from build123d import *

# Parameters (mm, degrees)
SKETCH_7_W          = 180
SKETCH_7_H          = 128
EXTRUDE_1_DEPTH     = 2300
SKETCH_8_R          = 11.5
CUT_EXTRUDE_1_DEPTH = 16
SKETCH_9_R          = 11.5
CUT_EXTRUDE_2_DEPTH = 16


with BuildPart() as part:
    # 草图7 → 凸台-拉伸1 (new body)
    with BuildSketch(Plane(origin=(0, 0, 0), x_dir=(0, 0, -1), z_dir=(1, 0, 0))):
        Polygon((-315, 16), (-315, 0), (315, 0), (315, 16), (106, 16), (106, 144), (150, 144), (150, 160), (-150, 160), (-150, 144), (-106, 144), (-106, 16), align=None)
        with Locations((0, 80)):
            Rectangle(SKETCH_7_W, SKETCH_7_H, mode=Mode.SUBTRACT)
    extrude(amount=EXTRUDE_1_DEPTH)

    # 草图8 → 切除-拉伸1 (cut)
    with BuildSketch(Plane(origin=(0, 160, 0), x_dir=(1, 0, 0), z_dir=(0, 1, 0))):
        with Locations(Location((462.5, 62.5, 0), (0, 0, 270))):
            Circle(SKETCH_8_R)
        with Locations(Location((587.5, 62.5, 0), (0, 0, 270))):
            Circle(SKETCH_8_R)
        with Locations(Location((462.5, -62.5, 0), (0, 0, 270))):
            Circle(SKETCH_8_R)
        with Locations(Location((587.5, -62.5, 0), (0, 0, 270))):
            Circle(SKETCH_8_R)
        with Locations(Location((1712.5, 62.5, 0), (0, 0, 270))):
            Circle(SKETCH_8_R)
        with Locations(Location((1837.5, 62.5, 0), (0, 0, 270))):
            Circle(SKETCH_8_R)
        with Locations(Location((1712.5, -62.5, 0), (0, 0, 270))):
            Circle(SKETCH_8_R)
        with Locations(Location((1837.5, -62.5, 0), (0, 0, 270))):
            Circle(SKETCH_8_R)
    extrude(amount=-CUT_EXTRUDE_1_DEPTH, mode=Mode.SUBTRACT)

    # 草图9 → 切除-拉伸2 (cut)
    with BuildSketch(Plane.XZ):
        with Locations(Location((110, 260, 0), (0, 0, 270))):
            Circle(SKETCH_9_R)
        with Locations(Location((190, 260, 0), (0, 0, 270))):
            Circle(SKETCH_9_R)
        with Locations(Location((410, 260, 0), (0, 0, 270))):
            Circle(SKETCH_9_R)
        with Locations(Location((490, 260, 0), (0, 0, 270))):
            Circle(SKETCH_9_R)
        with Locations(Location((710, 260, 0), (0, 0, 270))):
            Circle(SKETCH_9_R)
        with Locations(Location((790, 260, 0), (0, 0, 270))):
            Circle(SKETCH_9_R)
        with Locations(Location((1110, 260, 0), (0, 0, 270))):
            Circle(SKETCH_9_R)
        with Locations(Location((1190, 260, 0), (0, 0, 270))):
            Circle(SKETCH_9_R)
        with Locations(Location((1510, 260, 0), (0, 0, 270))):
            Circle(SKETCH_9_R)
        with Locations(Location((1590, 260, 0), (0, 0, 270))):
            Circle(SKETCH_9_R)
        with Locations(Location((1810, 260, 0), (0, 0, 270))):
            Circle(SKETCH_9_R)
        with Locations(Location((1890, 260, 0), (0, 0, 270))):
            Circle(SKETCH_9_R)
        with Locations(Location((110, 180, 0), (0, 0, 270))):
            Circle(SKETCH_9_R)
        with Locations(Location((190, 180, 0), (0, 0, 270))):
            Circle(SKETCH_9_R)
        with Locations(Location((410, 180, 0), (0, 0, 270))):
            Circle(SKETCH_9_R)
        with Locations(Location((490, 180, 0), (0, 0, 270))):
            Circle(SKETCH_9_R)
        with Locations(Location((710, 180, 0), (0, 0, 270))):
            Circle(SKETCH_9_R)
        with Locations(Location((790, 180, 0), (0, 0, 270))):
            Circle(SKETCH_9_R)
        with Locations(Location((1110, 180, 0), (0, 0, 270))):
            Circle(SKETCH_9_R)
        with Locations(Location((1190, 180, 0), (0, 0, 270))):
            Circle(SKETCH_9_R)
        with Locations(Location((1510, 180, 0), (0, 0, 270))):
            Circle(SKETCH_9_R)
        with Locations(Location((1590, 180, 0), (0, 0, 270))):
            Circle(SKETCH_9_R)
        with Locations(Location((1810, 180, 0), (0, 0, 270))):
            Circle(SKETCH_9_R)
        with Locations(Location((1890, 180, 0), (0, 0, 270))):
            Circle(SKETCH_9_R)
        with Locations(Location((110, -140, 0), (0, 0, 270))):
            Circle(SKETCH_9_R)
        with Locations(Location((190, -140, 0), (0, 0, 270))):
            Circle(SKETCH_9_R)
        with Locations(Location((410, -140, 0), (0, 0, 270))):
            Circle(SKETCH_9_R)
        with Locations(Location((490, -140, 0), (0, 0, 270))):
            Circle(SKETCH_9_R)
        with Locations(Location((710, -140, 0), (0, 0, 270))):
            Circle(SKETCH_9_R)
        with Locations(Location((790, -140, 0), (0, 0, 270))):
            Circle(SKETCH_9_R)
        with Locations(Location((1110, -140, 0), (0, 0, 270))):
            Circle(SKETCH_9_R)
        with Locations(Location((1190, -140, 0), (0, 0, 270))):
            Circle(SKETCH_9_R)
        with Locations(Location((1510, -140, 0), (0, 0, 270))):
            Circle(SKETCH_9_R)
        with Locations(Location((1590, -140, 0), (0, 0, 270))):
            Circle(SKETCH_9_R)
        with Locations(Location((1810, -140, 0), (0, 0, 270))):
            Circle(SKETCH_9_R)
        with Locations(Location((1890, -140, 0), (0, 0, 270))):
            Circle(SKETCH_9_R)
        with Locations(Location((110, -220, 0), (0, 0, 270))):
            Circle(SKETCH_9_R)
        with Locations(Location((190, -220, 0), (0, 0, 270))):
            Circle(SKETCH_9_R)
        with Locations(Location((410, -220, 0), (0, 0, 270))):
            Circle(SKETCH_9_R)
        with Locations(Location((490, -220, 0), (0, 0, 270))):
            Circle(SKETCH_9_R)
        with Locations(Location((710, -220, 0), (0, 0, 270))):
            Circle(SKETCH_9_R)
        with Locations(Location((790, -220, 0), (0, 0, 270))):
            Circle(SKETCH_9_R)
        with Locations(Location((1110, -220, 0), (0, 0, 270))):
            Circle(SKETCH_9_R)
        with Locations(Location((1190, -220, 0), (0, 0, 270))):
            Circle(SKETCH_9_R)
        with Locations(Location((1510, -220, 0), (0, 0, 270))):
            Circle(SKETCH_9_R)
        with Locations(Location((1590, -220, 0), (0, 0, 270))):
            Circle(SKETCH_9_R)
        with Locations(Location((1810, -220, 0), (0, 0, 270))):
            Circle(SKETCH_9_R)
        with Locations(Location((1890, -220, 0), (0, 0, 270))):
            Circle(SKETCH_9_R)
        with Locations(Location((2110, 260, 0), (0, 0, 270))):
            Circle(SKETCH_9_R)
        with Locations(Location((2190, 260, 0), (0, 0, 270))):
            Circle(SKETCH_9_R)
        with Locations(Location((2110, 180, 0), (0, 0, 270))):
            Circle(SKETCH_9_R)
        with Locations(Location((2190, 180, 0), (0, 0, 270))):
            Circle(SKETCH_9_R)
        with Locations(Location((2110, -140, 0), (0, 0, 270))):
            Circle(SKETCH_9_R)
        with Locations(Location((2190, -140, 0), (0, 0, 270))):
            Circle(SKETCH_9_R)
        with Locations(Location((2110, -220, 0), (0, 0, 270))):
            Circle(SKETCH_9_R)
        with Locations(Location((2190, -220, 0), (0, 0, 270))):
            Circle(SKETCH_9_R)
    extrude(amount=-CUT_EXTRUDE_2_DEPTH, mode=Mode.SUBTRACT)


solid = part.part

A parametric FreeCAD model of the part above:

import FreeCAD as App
import Part
import Sketcher
from FreeCAD import Vector
Q = App.Units.Quantity

doc = App.newDocument("Part")
params = doc.addObject("Spreadsheet::Sheet", "Params")
for row, (alias, value) in enumerate([
    ("sketch1_width", "16 mm"),
    ("sketch1_width2", "128 mm"),
    ("sketch1_height", "630 mm"),
    ("sketch1_height2", "209 mm"),
    ("sketch1_height3", "44 mm"),
    ("pad1_length", "2300 mm"),
    ("sketch2_diameter", "23 mm"),
    ("pocket1_length", "16 mm"),
    ("sketch3_diameter", "23 mm"),
    ("pocket2_length", "16 mm"),
], start=1):
    params.set(f"A{row}", alias)
    params.set(f"B{row}", "=" + value)
    params.setAlias(f"B{row}", alias)

body = doc.addObject("PartDesign::Body", "Body")

# Sketch on YZ plane
sketch1 = body.newObject("Sketcher::SketchObject", "Sketch")
sketch1.AttachmentSupport = (doc.getObject("YZ_Plane"), [""])
sketch1.MapMode = "FlatFace"
sketch1.addGeometry([
    Part.LineSegment(Vector(16, 315, 0), Vector(0, 315, 0)),  # 0
    Part.LineSegment(Vector(0, 315, 0), Vector(0, -315, 0)),  # 1
    Part.LineSegment(Vector(0, -315, 0), Vector(16, -315, 0)),  # 2
    Part.LineSegment(Vector(16, -315, 0), Vector(16, -106, 0)),  # 3
    Part.LineSegment(Vector(16, -106, 0), Vector(144, -106, 0)),  # 4
    Part.LineSegment(Vector(144, -106, 0), Vector(144, -150, 0)),  # 5
    Part.LineSegment(Vector(144, -150, 0), Vector(160, -150, 0)),  # 6
    Part.LineSegment(Vector(160, -150, 0), Vector(160, 150, 0)),  # 7
    Part.LineSegment(Vector(160, 150, 0), Vector(144, 150, 0)),  # 8
    Part.LineSegment(Vector(144, 150, 0), Vector(144, 106, 0)),  # 9
    Part.LineSegment(Vector(144, 106, 0), Vector(16, 106, 0)),  # 10
    Part.LineSegment(Vector(16, 106, 0), Vector(16, 315, 0)),  # 11
    Part.LineSegment(Vector(16, -90, 0), Vector(16, 90, 0)),  # 12
    Part.LineSegment(Vector(16, 90, 0), Vector(144, 90, 0)),  # 13
    Part.LineSegment(Vector(144, 90, 0), Vector(144, -90, 0)),  # 14
    Part.LineSegment(Vector(144, -90, 0), Vector(16, -90, 0)),  # 15
], False)
sketch1.addConstraint([
    Sketcher.Constraint("Coincident", 0, 2, 1, 1),
    Sketcher.Constraint("Coincident", 1, 2, 2, 1),
    Sketcher.Constraint("Coincident", 2, 2, 3, 1),
    Sketcher.Constraint("Coincident", 3, 2, 4, 1),
    Sketcher.Constraint("Coincident", 4, 2, 5, 1),
    Sketcher.Constraint("Coincident", 5, 2, 6, 1),
    Sketcher.Constraint("Coincident", 6, 2, 7, 1),
    Sketcher.Constraint("Coincident", 7, 2, 8, 1),
    Sketcher.Constraint("Coincident", 8, 2, 9, 1),
    Sketcher.Constraint("Coincident", 9, 2, 10, 1),
    Sketcher.Constraint("Coincident", 10, 2, 11, 1),
    Sketcher.Constraint("Coincident", 11, 2, 0, 1),
    Sketcher.Constraint("Coincident", 12, 2, 13, 1),
    Sketcher.Constraint("Coincident", 13, 2, 14, 1),
    Sketcher.Constraint("Coincident", 14, 2, 15, 1),
    Sketcher.Constraint("Coincident", 15, 2, 12, 1),
    Sketcher.Constraint("Horizontal", 0),
    Sketcher.Constraint("Vertical", 1),
    Sketcher.Constraint("Horizontal", 2),
    Sketcher.Constraint("Vertical", 3),
    Sketcher.Constraint("Horizontal", 4),
    Sketcher.Constraint("Vertical", 5),
    Sketcher.Constraint("Horizontal", 6),
    Sketcher.Constraint("Vertical", 7),
    Sketcher.Constraint("Horizontal", 8),
    Sketcher.Constraint("Vertical", 9),
    Sketcher.Constraint("Horizontal", 10),
    Sketcher.Constraint("Vertical", 11),
    Sketcher.Constraint("Vertical", 12),
    Sketcher.Constraint("Horizontal", 13),
    Sketcher.Constraint("Vertical", 14),
    Sketcher.Constraint("Horizontal", 15),
    Sketcher.Constraint("Symmetric", 0, 2, 1, 2, -1, 1),
    Sketcher.Constraint("Symmetric", 5, 2, 8, 2, -1),
    Sketcher.Constraint("Symmetric", 3, 2, 10, 2, -1),
    Sketcher.Constraint("Vertical", 11, 2, 12, 2),
    Sketcher.Constraint("Vertical", 9, 2, 13, 2),
    Sketcher.Constraint("Equal", 2, 6),
    Sketcher.Constraint("DistanceX", 0, 2, 0, 1, Q("16 mm")),
    Sketcher.Constraint("DistanceX", 4, 1, 4, 2, Q("128 mm")),
    Sketcher.Constraint("DistanceY", 1, 2, 1, 1, Q("630 mm")),
    Sketcher.Constraint("DistanceY", 3, 1, 3, 2, Q("209 mm")),
    Sketcher.Constraint("DistanceY", 5, 2, 5, 1, Q("44 mm")),
    Sketcher.Constraint("DistanceY", 12, 1, 12, 2, Q("180 mm")),
    Sketcher.Constraint("DistanceY", -1, 1, 12, 2, Q("90 mm")),
])
sketch1.setExpression("Constraints[38]", "Params.sketch1_width")
sketch1.setExpression("Constraints[39]", "Params.sketch1_width2")
sketch1.setExpression("Constraints[40]", "Params.sketch1_height")
sketch1.setExpression("Constraints[41]", "Params.sketch1_height2")
sketch1.setExpression("Constraints[42]", "Params.sketch1_height3")
pad1 = body.newObject("PartDesign::Pad", "Pad")
pad1.Profile = sketch1
pad1.setExpression("Length", "Params.pad1_length")

# Sketch on XZ plane
sketch2 = body.newObject("Sketcher::SketchObject", "Sketch001")
sketch2.AttachmentSupport = (doc.getObject("XZ_Plane"), [""])
sketch2.MapMode = "FlatFace"
sketch2.AttachmentOffset = App.Placement(Vector(0, 0, -160), App.Rotation())
sketch2.addGeometry([
    Part.Circle(Vector(462, -62, 0), Vector(0, 0, 1), 12),  # 0
    Part.Circle(Vector(588, -62, 0), Vector(0, 0, 1), 12),  # 1
    Part.Circle(Vector(462, 62, 0), Vector(0, 0, 1), 12),  # 2
    Part.Circle(Vector(588, 62, 0), Vector(0, 0, 1), 12),  # 3
    Part.Circle(Vector(1712, -62, 0), Vector(0, 0, 1), 12),  # 4
    Part.Circle(Vector(1838, -62, 0), Vector(0, 0, 1), 12),  # 5
    Part.Circle(Vector(1712, 62, 0), Vector(0, 0, 1), 12),  # 6
    Part.Circle(Vector(1838, 62, 0), Vector(0, 0, 1), 12),  # 7
], False)
sketch2.addConstraint([
    Sketcher.Constraint("Equal", 0, 1),
    Sketcher.Constraint("Equal", 1, 2),
    Sketcher.Constraint("Equal", 2, 3),
    Sketcher.Constraint("Equal", 3, 4),
    Sketcher.Constraint("Equal", 4, 5),
    Sketcher.Constraint("Equal", 5, 6),
    Sketcher.Constraint("Equal", 6, 7),
    Sketcher.Constraint("Symmetric", 0, 3, 2, 3, -1),
    Sketcher.Constraint("Symmetric", 1, 3, 3, 3, -1),
    Sketcher.Constraint("Symmetric", 4, 3, 6, 3, -1),
    Sketcher.Constraint("Symmetric", 5, 3, 7, 3, -1),
    Sketcher.Constraint("Horizontal", 0, 3, 1, 3),
    Sketcher.Constraint("Horizontal", 1, 3, 4, 3),
    Sketcher.Constraint("Horizontal", 4, 3, 5, 3),
    Sketcher.Constraint("Diameter", 0, Q("23 mm")),
    Sketcher.Constraint("DistanceX", 0, 3, 1, 3, Q("125 mm")),
    Sketcher.Constraint("DistanceY", 0, 3, 2, 3, Q("125 mm")),
    Sketcher.Constraint("DistanceX", 1, 3, 4, 3, Q("1125 mm")),
    Sketcher.Constraint("DistanceX", 4, 3, 5, 3, Q("125 mm")),
    Sketcher.Constraint("DistanceX", -1, 1, 0, 3, Q("462.5 mm")),
])
sketch2.setExpression("Constraints[14]", "Params.sketch2_diameter")
pocket1 = body.newObject("PartDesign::Pocket", "Pocket")
pocket1.Profile = sketch2
pocket1.setExpression("Length", "Params.pocket1_length")
pocket1.Reversed = True

# Sketch on XZ plane
sketch3 = body.newObject("Sketcher::SketchObject", "Sketch002")
sketch3.AttachmentSupport = (doc.getObject("XZ_Plane"), [""])
sketch3.MapMode = "FlatFace"
sketch3.addGeometry([
    Part.Circle(Vector(110, 260, 0), Vector(0, 0, 1), 12),  # 0
    Part.Circle(Vector(190, 260, 0), Vector(0, 0, 1), 12),  # 1
    Part.Circle(Vector(410, 260, 0), Vector(0, 0, 1), 12),  # 2
    Part.Circle(Vector(490, 260, 0), Vector(0, 0, 1), 12),  # 3
    Part.Circle(Vector(710, 260, 0), Vector(0, 0, 1), 12),  # 4
    Part.Circle(Vector(790, 260, 0), Vector(0, 0, 1), 12),  # 5
    Part.Circle(Vector(1110, 260, 0), Vector(0, 0, 1), 12),  # 6
    Part.Circle(Vector(1190, 260, 0), Vector(0, 0, 1), 12),  # 7
    Part.Circle(Vector(1510, 260, 0), Vector(0, 0, 1), 12),  # 8
    Part.Circle(Vector(1590, 260, 0), Vector(0, 0, 1), 12),  # 9
    Part.Circle(Vector(1810, 260, 0), Vector(0, 0, 1), 12),  # 10
    Part.Circle(Vector(1890, 260, 0), Vector(0, 0, 1), 12),  # 11
    Part.Circle(Vector(110, 180, 0), Vector(0, 0, 1), 12),  # 12
    Part.Circle(Vector(190, 180, 0), Vector(0, 0, 1), 12),  # 13
    Part.Circle(Vector(410, 180, 0), Vector(0, 0, 1), 12),  # 14
    Part.Circle(Vector(490, 180, 0), Vector(0, 0, 1), 12),  # 15
    Part.Circle(Vector(710, 180, 0), Vector(0, 0, 1), 12),  # 16
    Part.Circle(Vector(790, 180, 0), Vector(0, 0, 1), 12),  # 17
    Part.Circle(Vector(1110, 180, 0), Vector(0, 0, 1), 12),  # 18
    Part.Circle(Vector(1190, 180, 0), Vector(0, 0, 1), 12),  # 19
    Part.Circle(Vector(1510, 180, 0), Vector(0, 0, 1), 12),  # 20
    Part.Circle(Vector(1590, 180, 0), Vector(0, 0, 1), 12),  # 21
    Part.Circle(Vector(1810, 180, 0), Vector(0, 0, 1), 12),  # 22
    Part.Circle(Vector(1890, 180, 0), Vector(0, 0, 1), 12),  # 23
    Part.Circle(Vector(110, -140, 0), Vector(0, 0, 1), 12),  # 24
    Part.Circle(Vector(190, -140, 0), Vector(0, 0, 1), 12),  # 25
    Part.Circle(Vector(410, -140, 0), Vector(0, 0, 1), 12),  # 26
    Part.Circle(Vector(490, -140, 0), Vector(0, 0, 1), 12),  # 27
    Part.Circle(Vector(710, -140, 0), Vector(0, 0, 1), 12),  # 28
    Part.Circle(Vector(790, -140, 0), Vector(0, 0, 1), 12),  # 29
    Part.Circle(Vector(1110, -140, 0), Vector(0, 0, 1), 12),  # 30
    Part.Circle(Vector(1190, -140, 0), Vector(0, 0, 1), 12),  # 31
    Part.Circle(Vector(1510, -140, 0), Vector(0, 0, 1), 12),  # 32
    Part.Circle(Vector(1590, -140, 0), Vector(0, 0, 1), 12),  # 33
    Part.Circle(Vector(1810, -140, 0), Vector(0, 0, 1), 12),  # 34
    Part.Circle(Vector(1890, -140, 0), Vector(0, 0, 1), 12),  # 35
    Part.Circle(Vector(110, -220, 0), Vector(0, 0, 1), 12),  # 36
    Part.Circle(Vector(190, -220, 0), Vector(0, 0, 1), 12),  # 37
    Part.Circle(Vector(410, -220, 0), Vector(0, 0, 1), 12),  # 38
    Part.Circle(Vector(490, -220, 0), Vector(0, 0, 1), 12),  # 39
    Part.Circle(Vector(710, -220, 0), Vector(0, 0, 1), 12),  # 40
    Part.Circle(Vector(790, -220, 0), Vector(0, 0, 1), 12),  # 41
    Part.Circle(Vector(1110, -220, 0), Vector(0, 0, 1), 12),  # 42
    Part.Circle(Vector(1190, -220, 0), Vector(0, 0, 1), 12),  # 43
    Part.Circle(Vector(1510, -220, 0), Vector(0, 0, 1), 12),  # 44
    Part.Circle(Vector(1590, -220, 0), Vector(0, 0, 1), 12),  # 45
    Part.Circle(Vector(1810, -220, 0), Vector(0, 0, 1), 12),  # 46
    Part.Circle(Vector(1890, -220, 0), Vector(0, 0, 1), 12),  # 47
    Part.Circle(Vector(2110, 260, 0), Vector(0, 0, 1), 12),  # 48
    Part.Circle(Vector(2190, 260, 0), Vector(0, 0, 1), 12),  # 49
    Part.Circle(Vector(2110, 180, 0), Vector(0, 0, 1), 12),  # 50
    Part.Circle(Vector(2190, 180, 0), Vector(0, 0, 1), 12),  # 51
    Part.Circle(Vector(2110, -140, 0), Vector(0, 0, 1), 12),  # 52
    Part.Circle(Vector(2190, -140, 0), Vector(0, 0, 1), 12),  # 53
    Part.Circle(Vector(2110, -220, 0), Vector(0, 0, 1), 12),  # 54
    Part.Circle(Vector(2190, -220, 0), Vector(0, 0, 1), 12),  # 55
], False)
sketch3.addConstraint([
    Sketcher.Constraint("Equal", 0, 1),
    Sketcher.Constraint("Equal", 1, 2),
    Sketcher.Constraint("Equal", 2, 3),
    Sketcher.Constraint("Equal", 3, 4),
    Sketcher.Constraint("Equal", 4, 5),
    Sketcher.Constraint("Equal", 5, 6),
    Sketcher.Constraint("Equal", 6, 7),
    Sketcher.Constraint("Equal", 7, 8),
    Sketcher.Constraint("Equal", 8, 9),
    Sketcher.Constraint("Equal", 9, 10),
    Sketcher.Constraint("Equal", 10, 11),
    Sketcher.Constraint("Equal", 11, 12),
    Sketcher.Constraint("Equal", 12, 13),
    Sketcher.Constraint("Equal", 13, 14),
    Sketcher.Constraint("Equal", 14, 15),
    Sketcher.Constraint("Equal", 15, 16),
    Sketcher.Constraint("Equal", 16, 17),
    Sketcher.Constraint("Equal", 17, 18),
    Sketcher.Constraint("Equal", 18, 19),
    Sketcher.Constraint("Equal", 19, 20),
    Sketcher.Constraint("Equal", 20, 21),
    Sketcher.Constraint("Equal", 21, 22),
    Sketcher.Constraint("Equal", 22, 23),
    Sketcher.Constraint("Equal", 23, 24),
    Sketcher.Constraint("Equal", 24, 25),
    Sketcher.Constraint("Equal", 25, 26),
    Sketcher.Constraint("Equal", 26, 27),
    Sketcher.Constraint("Equal", 27, 28),
    Sketcher.Constraint("Equal", 28, 29),
    Sketcher.Constraint("Equal", 29, 30),
    Sketcher.Constraint("Equal", 30, 31),
    Sketcher.Constraint("Equal", 31, 32),
    Sketcher.Constraint("Equal", 32, 33),
    Sketcher.Constraint("Equal", 33, 34),
    Sketcher.Constraint("Equal", 34, 35),
    Sketcher.Constraint("Equal", 35, 36),
    Sketcher.Constraint("Equal", 36, 37),
    Sketcher.Constraint("Equal", 37, 38),
    Sketcher.Constraint("Equal", 38, 39),
    Sketcher.Constraint("Equal", 39, 40),
    Sketcher.Constraint("Equal", 40, 41),
    Sketcher.Constraint("Equal", 41, 42),
    Sketcher.Constraint("Equal", 42, 43),
    Sketcher.Constraint("Equal", 43, 44),
    Sketcher.Constraint("Equal", 44, 45),
    Sketcher.Constraint("Equal", 45, 46),
    Sketcher.Constraint("Equal", 46, 47),
    Sketcher.Constraint("Equal", 47, 48),
    Sketcher.Constraint("Equal", 48, 49),
    Sketcher.Constraint("Equal", 49, 50),
    Sketcher.Constraint("Equal", 50, 51),
    Sketcher.Constraint("Equal", 51, 52),
    Sketcher.Constraint("Equal", 52, 53),
    Sketcher.Constraint("Equal", 53, 54),
    Sketcher.Constraint("Equal", 54, 55),
    Sketcher.Constraint("Horizontal", 0, 3, 1, 3),
    Sketcher.Constraint("Horizontal", 1, 3, 2, 3),
    Sketcher.Constraint("Horizontal", 2, 3, 3, 3),
    Sketcher.Constraint("Horizontal", 3, 3, 4, 3),
    Sketcher.Constraint("Horizontal", 4, 3, 5, 3),
    Sketcher.Constraint("Horizontal", 5, 3, 6, 3),
    Sketcher.Constraint("Horizontal", 6, 3, 7, 3),
    Sketcher.Constraint("Horizontal", 7, 3, 8, 3),
    Sketcher.Constraint("Horizontal", 8, 3, 9, 3),
    Sketcher.Constraint("Horizontal", 9, 3, 10, 3),
    Sketcher.Constraint("Horizontal", 10, 3, 11, 3),
    Sketcher.Constraint("Horizontal", 12, 3, 13, 3),
    Sketcher.Constraint("Horizontal", 13, 3, 14, 3),
    Sketcher.Constraint("Horizontal", 14, 3, 15, 3),
    Sketcher.Constraint("Horizontal", 15, 3, 16, 3),
    Sketcher.Constraint("Horizontal", 16, 3, 17, 3),
    Sketcher.Constraint("Horizontal", 17, 3, 18, 3),
    Sketcher.Constraint("Horizontal", 18, 3, 19, 3),
    Sketcher.Constraint("Horizontal", 19, 3, 20, 3),
    Sketcher.Constraint("Horizontal", 20, 3, 21, 3),
    Sketcher.Constraint("Horizontal", 21, 3, 22, 3),
    Sketcher.Constraint("Horizontal", 22, 3, 23, 3),
    Sketcher.Constraint("Horizontal", 24, 3, 25, 3),
    Sketcher.Constraint("Horizontal", 25, 3, 26, 3),
    Sketcher.Constraint("Horizontal", 26, 3, 27, 3),
    Sketcher.Constraint("Horizontal", 27, 3, 28, 3),
    Sketcher.Constraint("Horizontal", 28, 3, 29, 3),
    Sketcher.Constraint("Horizontal", 29, 3, 30, 3),
    Sketcher.Constraint("Horizontal", 30, 3, 31, 3),
    Sketcher.Constraint("Horizontal", 31, 3, 32, 3),
    Sketcher.Constraint("Horizontal", 32, 3, 33, 3),
    Sketcher.Constraint("Horizontal", 33, 3, 34, 3),
    Sketcher.Constraint("Horizontal", 34, 3, 35, 3),
    Sketcher.Constraint("Horizontal", 36, 3, 37, 3),
    Sketcher.Constraint("Horizontal", 37, 3, 38, 3),
    Sketcher.Constraint("Horizontal", 38, 3, 39, 3),
    Sketcher.Constraint("Horizontal", 39, 3, 40, 3),
    Sketcher.Constraint("Horizontal", 40, 3, 41, 3),
    Sketcher.Constraint("Horizontal", 41, 3, 42, 3),
    Sketcher.Constraint("Horizontal", 42, 3, 43, 3),
    Sketcher.Constraint("Horizontal", 43, 3, 44, 3),
    Sketcher.Constraint("Horizontal", 44, 3, 45, 3),
    Sketcher.Constraint("Horizontal", 45, 3, 46, 3),
    Sketcher.Constraint("Horizontal", 46, 3, 47, 3),
    Sketcher.Constraint("Horizontal", 11, 3, 48, 3),
    Sketcher.Constraint("Horizontal", 48, 3, 49, 3),
    Sketcher.Constraint("Horizontal", 23, 3, 50, 3),
    Sketcher.Constraint("Horizontal", 50, 3, 51, 3),
    Sketcher.Constraint("Horizontal", 35, 3, 52, 3),
    Sketcher.Constraint("Horizontal", 52, 3, 53, 3),
    Sketcher.Constraint("Horizontal", 47, 3, 54, 3),
    Sketcher.Constraint("Horizontal", 54, 3, 55, 3),
    Sketcher.Constraint("Vertical", 0, 3, 12, 3),
    Sketcher.Constraint("Vertical", 1, 3, 13, 3),
    Sketcher.Constraint("Vertical", 2, 3, 14, 3),
    Sketcher.Constraint("Vertical", 3, 3, 15, 3),
    Sketcher.Constraint("Vertical", 4, 3, 16, 3),
    Sketcher.Constraint("Vertical", 5, 3, 17, 3),
    Sketcher.Constraint("Vertical", 6, 3, 18, 3),
    Sketcher.Constraint("Vertical", 7, 3, 19, 3),
    Sketcher.Constraint("Vertical", 8, 3, 20, 3),
    Sketcher.Constraint("Vertical", 9, 3, 21, 3),
    Sketcher.Constraint("Vertical", 10, 3, 22, 3),
    Sketcher.Constraint("Vertical", 11, 3, 23, 3),
    Sketcher.Constraint("Vertical", 12, 3, 24, 3),
    Sketcher.Constraint("Vertical", 13, 3, 25, 3),
    Sketcher.Constraint("Vertical", 14, 3, 26, 3),
    Sketcher.Constraint("Vertical", 15, 3, 27, 3),
    Sketcher.Constraint("Vertical", 16, 3, 28, 3),
    Sketcher.Constraint("Vertical", 17, 3, 29, 3),
    Sketcher.Constraint("Vertical", 18, 3, 30, 3),
    Sketcher.Constraint("Vertical", 19, 3, 31, 3),
    Sketcher.Constraint("Vertical", 20, 3, 32, 3),
    Sketcher.Constraint("Vertical", 21, 3, 33, 3),
    Sketcher.Constraint("Vertical", 22, 3, 34, 3),
    Sketcher.Constraint("Vertical", 23, 3, 35, 3),
    Sketcher.Constraint("Vertical", 24, 3, 36, 3),
    Sketcher.Constraint("Vertical", 25, 3, 37, 3),
    Sketcher.Constraint("Vertical", 26, 3, 38, 3),
    Sketcher.Constraint("Vertical", 27, 3, 39, 3),
    Sketcher.Constraint("Vertical", 28, 3, 40, 3),
    Sketcher.Constraint("Vertical", 29, 3, 41, 3),
    Sketcher.Constraint("Vertical", 30, 3, 42, 3),
    Sketcher.Constraint("Vertical", 31, 3, 43, 3),
    Sketcher.Constraint("Vertical", 32, 3, 44, 3),
    Sketcher.Constraint("Vertical", 33, 3, 45, 3),
    Sketcher.Constraint("Vertical", 34, 3, 46, 3),
    Sketcher.Constraint("Vertical", 35, 3, 47, 3),
    Sketcher.Constraint("Vertical", 48, 3, 50, 3),
    Sketcher.Constraint("Vertical", 49, 3, 51, 3),
    Sketcher.Constraint("Vertical", 50, 3, 52, 3),
    Sketcher.Constraint("Vertical", 51, 3, 53, 3),
    Sketcher.Constraint("Vertical", 52, 3, 54, 3),
    Sketcher.Constraint("Vertical", 53, 3, 55, 3),
    Sketcher.Constraint("Diameter", 0, Q("23 mm")),
    Sketcher.Constraint("DistanceX", -1, 1, 0, 3, Q("110 mm")),
    Sketcher.Constraint("DistanceY", -1, 1, 0, 3, Q("260 mm")),
    Sketcher.Constraint("DistanceX", -1, 1, 1, 3, Q("190 mm")),
    Sketcher.Constraint("DistanceX", -1, 1, 2, 3, Q("410 mm")),
    Sketcher.Constraint("DistanceX", -1, 1, 3, 3, Q("490 mm")),
    Sketcher.Constraint("DistanceX", -1, 1, 4, 3, Q("710 mm")),
    Sketcher.Constraint("DistanceX", -1, 1, 5, 3, Q("790 mm")),
    Sketcher.Constraint("DistanceX", -1, 1, 6, 3, Q("1110 mm")),
    Sketcher.Constraint("DistanceX", -1, 1, 7, 3, Q("1190 mm")),
    Sketcher.Constraint("DistanceX", -1, 1, 8, 3, Q("1510 mm")),
    Sketcher.Constraint("DistanceX", -1, 1, 9, 3, Q("1590 mm")),
    Sketcher.Constraint("DistanceX", -1, 1, 10, 3, Q("1810 mm")),
    Sketcher.Constraint("DistanceX", -1, 1, 11, 3, Q("1890 mm")),
    Sketcher.Constraint("DistanceY", -1, 1, 12, 3, Q("180 mm")),
    Sketcher.Constraint("DistanceY", 24, 3, -1, 1, Q("140 mm")),
    Sketcher.Constraint("DistanceY", 36, 3, -1, 1, Q("220 mm")),
    Sketcher.Constraint("DistanceX", -1, 1, 48, 3, Q("2110 mm")),
    Sketcher.Constraint("DistanceX", -1, 1, 49, 3, Q("2190 mm")),
])
sketch3.setExpression("Constraints[149]", "Params.sketch3_diameter")
pocket2 = body.newObject("PartDesign::Pocket", "Pocket001")
pocket2.Profile = sketch3
pocket2.setExpression("Length", "Params.pocket2_length")

doc.recompute()
